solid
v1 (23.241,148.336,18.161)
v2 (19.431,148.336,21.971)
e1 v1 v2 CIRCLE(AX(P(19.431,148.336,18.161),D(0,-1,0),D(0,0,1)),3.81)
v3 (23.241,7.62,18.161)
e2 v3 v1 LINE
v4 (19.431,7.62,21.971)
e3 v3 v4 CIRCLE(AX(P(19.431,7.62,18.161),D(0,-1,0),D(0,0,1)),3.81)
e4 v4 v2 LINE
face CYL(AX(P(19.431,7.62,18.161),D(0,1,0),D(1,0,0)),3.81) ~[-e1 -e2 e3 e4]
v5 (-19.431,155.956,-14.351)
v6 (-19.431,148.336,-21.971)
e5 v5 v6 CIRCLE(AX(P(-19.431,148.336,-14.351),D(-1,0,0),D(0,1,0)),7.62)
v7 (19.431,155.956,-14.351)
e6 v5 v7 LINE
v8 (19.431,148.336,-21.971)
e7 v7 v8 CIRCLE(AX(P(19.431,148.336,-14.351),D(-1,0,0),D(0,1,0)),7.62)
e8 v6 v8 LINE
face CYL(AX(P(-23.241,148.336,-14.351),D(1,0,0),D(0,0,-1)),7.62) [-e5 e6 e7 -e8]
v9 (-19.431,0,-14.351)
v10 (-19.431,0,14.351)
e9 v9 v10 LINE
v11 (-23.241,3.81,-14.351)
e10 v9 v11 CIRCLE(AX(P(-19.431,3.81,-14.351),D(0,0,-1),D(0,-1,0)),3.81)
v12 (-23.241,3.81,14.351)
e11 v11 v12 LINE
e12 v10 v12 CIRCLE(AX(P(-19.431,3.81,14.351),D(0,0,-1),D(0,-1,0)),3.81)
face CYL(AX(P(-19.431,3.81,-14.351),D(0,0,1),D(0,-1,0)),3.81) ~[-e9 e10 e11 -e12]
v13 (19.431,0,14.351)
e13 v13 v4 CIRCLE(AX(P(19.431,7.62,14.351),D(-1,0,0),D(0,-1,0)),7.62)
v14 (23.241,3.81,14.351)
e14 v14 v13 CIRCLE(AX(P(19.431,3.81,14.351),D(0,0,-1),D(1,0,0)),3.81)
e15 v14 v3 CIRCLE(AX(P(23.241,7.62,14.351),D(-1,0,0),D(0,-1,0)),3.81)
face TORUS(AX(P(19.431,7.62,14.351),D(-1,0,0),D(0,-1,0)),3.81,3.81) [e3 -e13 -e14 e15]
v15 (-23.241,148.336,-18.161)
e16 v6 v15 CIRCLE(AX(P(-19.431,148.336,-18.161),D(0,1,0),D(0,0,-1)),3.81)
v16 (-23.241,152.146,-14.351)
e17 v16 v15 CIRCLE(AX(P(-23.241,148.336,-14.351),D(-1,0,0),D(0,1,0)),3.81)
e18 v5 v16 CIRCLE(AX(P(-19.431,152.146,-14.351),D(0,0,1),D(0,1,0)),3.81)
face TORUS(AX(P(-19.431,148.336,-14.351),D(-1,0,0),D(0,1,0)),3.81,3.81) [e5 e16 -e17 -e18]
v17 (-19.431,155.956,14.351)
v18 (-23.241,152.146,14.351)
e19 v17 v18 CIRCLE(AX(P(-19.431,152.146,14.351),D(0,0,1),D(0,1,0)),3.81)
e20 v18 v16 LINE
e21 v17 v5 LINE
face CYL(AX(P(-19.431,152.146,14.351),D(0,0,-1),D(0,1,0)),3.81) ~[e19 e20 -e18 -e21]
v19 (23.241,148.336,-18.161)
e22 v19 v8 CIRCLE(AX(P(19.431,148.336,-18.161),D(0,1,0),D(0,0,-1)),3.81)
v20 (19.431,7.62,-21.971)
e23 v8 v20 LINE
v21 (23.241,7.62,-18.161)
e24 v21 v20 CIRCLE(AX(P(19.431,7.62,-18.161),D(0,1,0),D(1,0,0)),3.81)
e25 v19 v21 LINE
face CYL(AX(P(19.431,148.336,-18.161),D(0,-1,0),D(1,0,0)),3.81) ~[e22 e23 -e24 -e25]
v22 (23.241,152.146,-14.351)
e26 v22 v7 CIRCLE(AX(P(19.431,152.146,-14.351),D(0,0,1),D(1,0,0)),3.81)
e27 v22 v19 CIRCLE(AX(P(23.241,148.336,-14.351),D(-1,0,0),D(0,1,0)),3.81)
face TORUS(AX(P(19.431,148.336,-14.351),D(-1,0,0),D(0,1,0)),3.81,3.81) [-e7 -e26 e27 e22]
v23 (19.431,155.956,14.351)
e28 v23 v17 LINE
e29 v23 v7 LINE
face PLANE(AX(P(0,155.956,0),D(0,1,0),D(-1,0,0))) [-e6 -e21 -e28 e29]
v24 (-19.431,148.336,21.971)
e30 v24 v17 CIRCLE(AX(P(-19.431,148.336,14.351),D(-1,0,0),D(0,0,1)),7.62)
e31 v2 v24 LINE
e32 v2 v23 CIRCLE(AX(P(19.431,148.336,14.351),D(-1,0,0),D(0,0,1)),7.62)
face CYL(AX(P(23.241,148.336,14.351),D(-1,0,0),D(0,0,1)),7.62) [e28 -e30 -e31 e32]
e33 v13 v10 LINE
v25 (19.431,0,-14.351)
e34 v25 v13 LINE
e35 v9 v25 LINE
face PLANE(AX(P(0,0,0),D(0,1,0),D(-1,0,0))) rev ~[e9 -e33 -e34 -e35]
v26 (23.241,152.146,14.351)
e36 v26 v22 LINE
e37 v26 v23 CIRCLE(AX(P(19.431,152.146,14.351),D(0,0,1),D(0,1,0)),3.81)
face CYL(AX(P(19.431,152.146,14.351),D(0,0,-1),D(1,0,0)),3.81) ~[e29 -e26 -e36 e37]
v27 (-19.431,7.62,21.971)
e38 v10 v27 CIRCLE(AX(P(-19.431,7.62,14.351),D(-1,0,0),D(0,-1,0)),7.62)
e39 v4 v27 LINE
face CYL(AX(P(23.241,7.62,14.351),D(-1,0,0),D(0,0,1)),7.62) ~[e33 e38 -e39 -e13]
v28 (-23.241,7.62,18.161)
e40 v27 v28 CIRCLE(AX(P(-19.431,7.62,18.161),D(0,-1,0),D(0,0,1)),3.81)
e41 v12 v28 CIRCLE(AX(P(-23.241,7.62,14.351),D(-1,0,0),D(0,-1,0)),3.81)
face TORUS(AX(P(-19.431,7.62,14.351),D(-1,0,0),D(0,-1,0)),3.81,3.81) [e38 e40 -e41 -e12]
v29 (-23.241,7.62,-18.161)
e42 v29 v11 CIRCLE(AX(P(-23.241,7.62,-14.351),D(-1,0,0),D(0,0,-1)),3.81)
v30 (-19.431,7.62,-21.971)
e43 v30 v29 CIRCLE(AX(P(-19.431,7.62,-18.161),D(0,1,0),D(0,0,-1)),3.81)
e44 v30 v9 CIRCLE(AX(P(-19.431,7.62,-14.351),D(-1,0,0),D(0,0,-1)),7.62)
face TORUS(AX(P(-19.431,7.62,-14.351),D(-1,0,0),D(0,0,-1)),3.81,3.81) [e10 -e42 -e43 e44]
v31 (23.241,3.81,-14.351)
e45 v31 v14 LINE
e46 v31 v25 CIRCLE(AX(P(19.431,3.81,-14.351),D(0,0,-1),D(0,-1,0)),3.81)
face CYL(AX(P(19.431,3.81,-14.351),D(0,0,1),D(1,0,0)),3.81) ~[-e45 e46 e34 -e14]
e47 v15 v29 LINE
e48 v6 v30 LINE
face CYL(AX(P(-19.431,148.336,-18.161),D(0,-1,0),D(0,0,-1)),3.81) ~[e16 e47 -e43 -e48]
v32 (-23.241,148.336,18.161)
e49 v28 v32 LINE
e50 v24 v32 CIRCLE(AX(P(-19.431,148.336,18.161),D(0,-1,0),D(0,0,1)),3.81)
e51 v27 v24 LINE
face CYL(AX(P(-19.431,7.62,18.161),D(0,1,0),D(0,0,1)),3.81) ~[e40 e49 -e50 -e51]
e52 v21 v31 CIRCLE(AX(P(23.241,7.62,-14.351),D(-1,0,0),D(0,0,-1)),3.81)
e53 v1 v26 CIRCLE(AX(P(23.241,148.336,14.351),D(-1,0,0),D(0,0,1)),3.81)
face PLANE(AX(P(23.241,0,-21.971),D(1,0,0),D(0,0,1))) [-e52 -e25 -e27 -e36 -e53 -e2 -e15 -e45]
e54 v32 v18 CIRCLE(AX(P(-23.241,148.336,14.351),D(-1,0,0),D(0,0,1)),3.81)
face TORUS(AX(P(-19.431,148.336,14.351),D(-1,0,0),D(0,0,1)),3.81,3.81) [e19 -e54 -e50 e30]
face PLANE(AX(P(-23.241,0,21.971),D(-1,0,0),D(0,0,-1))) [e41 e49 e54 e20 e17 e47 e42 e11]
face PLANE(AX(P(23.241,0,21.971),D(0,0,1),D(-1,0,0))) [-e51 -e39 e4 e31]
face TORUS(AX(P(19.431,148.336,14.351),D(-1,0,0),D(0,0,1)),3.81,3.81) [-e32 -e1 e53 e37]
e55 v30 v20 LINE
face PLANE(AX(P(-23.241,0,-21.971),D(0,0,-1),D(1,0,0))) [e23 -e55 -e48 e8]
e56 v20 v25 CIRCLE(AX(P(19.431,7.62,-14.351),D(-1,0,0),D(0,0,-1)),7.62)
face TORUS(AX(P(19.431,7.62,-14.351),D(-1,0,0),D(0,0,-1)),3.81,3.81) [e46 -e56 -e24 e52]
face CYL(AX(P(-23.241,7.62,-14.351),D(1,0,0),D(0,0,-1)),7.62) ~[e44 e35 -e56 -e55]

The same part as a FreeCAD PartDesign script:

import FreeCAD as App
import Part
import Sketcher
Q = App.Units.Quantity


def edges_at(feature, points):
    """Names of the edges that pass closest to the given points."""
    edges = feature.Shape.Edges
    near = lambda p: min(range(len(edges)), key=lambda i: edges[i].distToShape(Part.Vertex(*p))[0])
    return sorted({f"Edge{near(p) + 1}" for p in points})


def add_polygon(sketch, points):
    """Adds a closed chain of lines whose ends are joined by coincident constraints."""
    first, n = sketch.GeometryCount, len(points)
    for a, b in zip(points, points[1:] + points[:1]):
        sketch.addGeometry(Part.LineSegment(App.Vector(*a, 0), App.Vector(*b, 0)), False)
    for i in range(n):
        sketch.addConstraint(Sketcher.Constraint("Coincident", first + i, 2, first + (i + 1) % n, 1))

doc = App.newDocument("Part")
body = doc.addObject("PartDesign::Body", "Body")

# Sketch on XZ plane
sketch1 = body.newObject("Sketcher::SketchObject", "Sketch")
sketch1.AttachmentSupport = (doc.getObject("XZ_Plane"), [""])
sketch1.MapMode = "FlatFace"
add_polygon(sketch1, [(-23.241, 21.971), (23.241, 21.971), (23.241, -21.971), (-23.241, -21.971)])  # lines 0-3
sketch1.addConstraint([
    Sketcher.Constraint("Horizontal", 0),
    Sketcher.Constraint("Vertical", 1),
    Sketcher.Constraint("Horizontal", 2),
    Sketcher.Constraint("Vertical", 3),
    Sketcher.Constraint("Symmetric", 0, 2, 2, 2, -1, 1),
    Sketcher.Constraint("DistanceX", 0, 1, 0, 2, Q("1.83 in")),
    Sketcher.Constraint("DistanceY", 1, 2, 1, 1, Q("1.73 in")),
])
pad1 = body.newObject("PartDesign::Pad", "Pad")
pad1.Profile = sketch1
pad1.Length = Q("6.14 in")
pad1.Reversed = True
doc.recompute()

fillet = body.newObject("PartDesign::Fillet", "Fillet")
fillet.Base = (pad1, edges_at(pad1, [
    (0, 155.956, -21.971),
    (0, 155.956, 21.971),
    (0, 0, -21.971),
    (0, 0, 21.971),
]))
fillet.Radius = Q("0.3 in")
doc.recompute()

fillet2 = body.newObject("PartDesign::Fillet", "Fillet001")
fillet2.Base = (fillet, edges_at(fillet, [
    (23.241, 153.724, 19.739),
    (23.241, 155.956, 0),
    (23.241, 153.724, -19.739),
    (23.241, 77.978, -21.971),
    (23.241, 2.232, -19.739),
    (23.241, 0, 0),
    (23.241, 2.232, 19.739),
    (23.241, 77.978, 21.971),
    (-23.241, 153.724, 19.739),
    (-23.241, 155.956, 0),
    (-23.241, 153.724, -19.739),
    (-23.241, 77.978, -21.971),
    (-23.241, 2.232, -19.739),
    (-23.241, 0, 0),
    (-23.241, 2.232, 19.739),
    (-23.241, 77.978, 21.971),
]))
fillet2.Radius = Q("0.15 in")

doc.recompute()
